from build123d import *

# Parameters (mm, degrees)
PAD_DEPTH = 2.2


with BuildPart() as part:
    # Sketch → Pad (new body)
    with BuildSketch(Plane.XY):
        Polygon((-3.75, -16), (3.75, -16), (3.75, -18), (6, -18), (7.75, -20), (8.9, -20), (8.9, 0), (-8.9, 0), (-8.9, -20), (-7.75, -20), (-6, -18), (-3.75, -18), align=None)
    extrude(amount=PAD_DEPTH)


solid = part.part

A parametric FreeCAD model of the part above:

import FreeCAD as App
import Part
import Sketcher
Q = App.Units.Quantity


def add_polygon(sketch, points):
    """Adds a closed chain of lines whose ends are joined by coincident constraints."""
    first, n = sketch.GeometryCount, len(points)
    for a, b in zip(points, points[1:] + points[:1]):
        sketch.addGeometry(Part.LineSegment(App.Vector(*a, 0), App.Vector(*b, 0)), False)
    for i in range(n):
        sketch.addConstraint(Sketcher.Constraint("Coincident", first + i, 2, first + (i + 1) % n, 1))

doc = App.newDocument("Part")
body = doc.addObject("PartDesign::Body", "Body")

# Sketch on XY plane
sketch1 = body.newObject("Sketcher::SketchObject", "Sketch")
sketch1.AttachmentSupport = (doc.getObject("XY_Plane"), [""])
sketch1.MapMode = "FlatFace"
add_polygon(sketch1, [(-3.75, -16), (3.75, -16), (3.75, -18), (6, -18), (7.75, -20), (8.9, -20), (8.9, 0), (-8.9, 0), (-8.9, -20), (-7.75, -20), (-6, -18), (-3.75, -18)])  # lines 0-11
sketch1.addConstraint(Sketcher.Constraint("Horizontal", 0))
sketch1.addConstraint(Sketcher.Constraint("Vertical", 1))
sketch1.addConstraint(Sketcher.Constraint("Horizontal", 2))
sketch1.addConstraint(Sketcher.Constraint("Horizontal", 4))
sketch1.addConstraint(Sketcher.Constraint("Vertical", 5))
sketch1.addConstraint(Sketcher.Constraint("Horizontal", 6))
sketch1.addConstraint(Sketcher.Constraint("Vertical", 7))
sketch1.addConstraint(Sketcher.Constraint("Horizontal", 8))
sketch1.addConstraint(Sketcher.Constraint("Horizontal", 10))
sketch1.addConstraint(Sketcher.Constraint("Vertical", 11))
sketch1.addConstraint(Sketcher.Constraint("Symmetric", 5, 2, 6, 2, -1, 1))
sketch1.addConstraint(Sketcher.Constraint("Symmetric", 3, 2, 8, 2, -2))
sketch1.addConstraint(Sketcher.Constraint("Symmetric", 2, 2, 9, 2, -2))
sketch1.addConstraint(Sketcher.Constraint("Equal", 2, 10))
sketch1.addConstraint(Sketcher.Constraint("DistanceY", 1, 2, 1, 1, Q("2 mm")))
sketch1.addConstraint(Sketcher.Constraint("DistanceY", 5, 1, 5, 2, Q("20 mm")))
sketch1.addConstraint(Sketcher.Constraint("DistanceX", 0, 1, 0, 2, Q("7.5 mm")))
sketch1.addConstraint(Sketcher.Constraint("DistanceX", 6, 2, 6, 1, Q("17.8 mm")))
sketch1.addConstraint(Sketcher.Constraint("DistanceY", 0, 2, -1, 1, Q("16 mm")))
sketch1.addConstraint(Sketcher.Constraint("DistanceX", -1, 1, 2, 2, Q("6 mm")))
sketch1.addConstraint(Sketcher.Constraint("DistanceX", 1, 2, 3, 2, Q("4 mm")))
pad1 = body.newObject("PartDesign::Pad", "Pad")
pad1.Profile = sketch1
pad1.Length = 2.2

doc.recompute()
